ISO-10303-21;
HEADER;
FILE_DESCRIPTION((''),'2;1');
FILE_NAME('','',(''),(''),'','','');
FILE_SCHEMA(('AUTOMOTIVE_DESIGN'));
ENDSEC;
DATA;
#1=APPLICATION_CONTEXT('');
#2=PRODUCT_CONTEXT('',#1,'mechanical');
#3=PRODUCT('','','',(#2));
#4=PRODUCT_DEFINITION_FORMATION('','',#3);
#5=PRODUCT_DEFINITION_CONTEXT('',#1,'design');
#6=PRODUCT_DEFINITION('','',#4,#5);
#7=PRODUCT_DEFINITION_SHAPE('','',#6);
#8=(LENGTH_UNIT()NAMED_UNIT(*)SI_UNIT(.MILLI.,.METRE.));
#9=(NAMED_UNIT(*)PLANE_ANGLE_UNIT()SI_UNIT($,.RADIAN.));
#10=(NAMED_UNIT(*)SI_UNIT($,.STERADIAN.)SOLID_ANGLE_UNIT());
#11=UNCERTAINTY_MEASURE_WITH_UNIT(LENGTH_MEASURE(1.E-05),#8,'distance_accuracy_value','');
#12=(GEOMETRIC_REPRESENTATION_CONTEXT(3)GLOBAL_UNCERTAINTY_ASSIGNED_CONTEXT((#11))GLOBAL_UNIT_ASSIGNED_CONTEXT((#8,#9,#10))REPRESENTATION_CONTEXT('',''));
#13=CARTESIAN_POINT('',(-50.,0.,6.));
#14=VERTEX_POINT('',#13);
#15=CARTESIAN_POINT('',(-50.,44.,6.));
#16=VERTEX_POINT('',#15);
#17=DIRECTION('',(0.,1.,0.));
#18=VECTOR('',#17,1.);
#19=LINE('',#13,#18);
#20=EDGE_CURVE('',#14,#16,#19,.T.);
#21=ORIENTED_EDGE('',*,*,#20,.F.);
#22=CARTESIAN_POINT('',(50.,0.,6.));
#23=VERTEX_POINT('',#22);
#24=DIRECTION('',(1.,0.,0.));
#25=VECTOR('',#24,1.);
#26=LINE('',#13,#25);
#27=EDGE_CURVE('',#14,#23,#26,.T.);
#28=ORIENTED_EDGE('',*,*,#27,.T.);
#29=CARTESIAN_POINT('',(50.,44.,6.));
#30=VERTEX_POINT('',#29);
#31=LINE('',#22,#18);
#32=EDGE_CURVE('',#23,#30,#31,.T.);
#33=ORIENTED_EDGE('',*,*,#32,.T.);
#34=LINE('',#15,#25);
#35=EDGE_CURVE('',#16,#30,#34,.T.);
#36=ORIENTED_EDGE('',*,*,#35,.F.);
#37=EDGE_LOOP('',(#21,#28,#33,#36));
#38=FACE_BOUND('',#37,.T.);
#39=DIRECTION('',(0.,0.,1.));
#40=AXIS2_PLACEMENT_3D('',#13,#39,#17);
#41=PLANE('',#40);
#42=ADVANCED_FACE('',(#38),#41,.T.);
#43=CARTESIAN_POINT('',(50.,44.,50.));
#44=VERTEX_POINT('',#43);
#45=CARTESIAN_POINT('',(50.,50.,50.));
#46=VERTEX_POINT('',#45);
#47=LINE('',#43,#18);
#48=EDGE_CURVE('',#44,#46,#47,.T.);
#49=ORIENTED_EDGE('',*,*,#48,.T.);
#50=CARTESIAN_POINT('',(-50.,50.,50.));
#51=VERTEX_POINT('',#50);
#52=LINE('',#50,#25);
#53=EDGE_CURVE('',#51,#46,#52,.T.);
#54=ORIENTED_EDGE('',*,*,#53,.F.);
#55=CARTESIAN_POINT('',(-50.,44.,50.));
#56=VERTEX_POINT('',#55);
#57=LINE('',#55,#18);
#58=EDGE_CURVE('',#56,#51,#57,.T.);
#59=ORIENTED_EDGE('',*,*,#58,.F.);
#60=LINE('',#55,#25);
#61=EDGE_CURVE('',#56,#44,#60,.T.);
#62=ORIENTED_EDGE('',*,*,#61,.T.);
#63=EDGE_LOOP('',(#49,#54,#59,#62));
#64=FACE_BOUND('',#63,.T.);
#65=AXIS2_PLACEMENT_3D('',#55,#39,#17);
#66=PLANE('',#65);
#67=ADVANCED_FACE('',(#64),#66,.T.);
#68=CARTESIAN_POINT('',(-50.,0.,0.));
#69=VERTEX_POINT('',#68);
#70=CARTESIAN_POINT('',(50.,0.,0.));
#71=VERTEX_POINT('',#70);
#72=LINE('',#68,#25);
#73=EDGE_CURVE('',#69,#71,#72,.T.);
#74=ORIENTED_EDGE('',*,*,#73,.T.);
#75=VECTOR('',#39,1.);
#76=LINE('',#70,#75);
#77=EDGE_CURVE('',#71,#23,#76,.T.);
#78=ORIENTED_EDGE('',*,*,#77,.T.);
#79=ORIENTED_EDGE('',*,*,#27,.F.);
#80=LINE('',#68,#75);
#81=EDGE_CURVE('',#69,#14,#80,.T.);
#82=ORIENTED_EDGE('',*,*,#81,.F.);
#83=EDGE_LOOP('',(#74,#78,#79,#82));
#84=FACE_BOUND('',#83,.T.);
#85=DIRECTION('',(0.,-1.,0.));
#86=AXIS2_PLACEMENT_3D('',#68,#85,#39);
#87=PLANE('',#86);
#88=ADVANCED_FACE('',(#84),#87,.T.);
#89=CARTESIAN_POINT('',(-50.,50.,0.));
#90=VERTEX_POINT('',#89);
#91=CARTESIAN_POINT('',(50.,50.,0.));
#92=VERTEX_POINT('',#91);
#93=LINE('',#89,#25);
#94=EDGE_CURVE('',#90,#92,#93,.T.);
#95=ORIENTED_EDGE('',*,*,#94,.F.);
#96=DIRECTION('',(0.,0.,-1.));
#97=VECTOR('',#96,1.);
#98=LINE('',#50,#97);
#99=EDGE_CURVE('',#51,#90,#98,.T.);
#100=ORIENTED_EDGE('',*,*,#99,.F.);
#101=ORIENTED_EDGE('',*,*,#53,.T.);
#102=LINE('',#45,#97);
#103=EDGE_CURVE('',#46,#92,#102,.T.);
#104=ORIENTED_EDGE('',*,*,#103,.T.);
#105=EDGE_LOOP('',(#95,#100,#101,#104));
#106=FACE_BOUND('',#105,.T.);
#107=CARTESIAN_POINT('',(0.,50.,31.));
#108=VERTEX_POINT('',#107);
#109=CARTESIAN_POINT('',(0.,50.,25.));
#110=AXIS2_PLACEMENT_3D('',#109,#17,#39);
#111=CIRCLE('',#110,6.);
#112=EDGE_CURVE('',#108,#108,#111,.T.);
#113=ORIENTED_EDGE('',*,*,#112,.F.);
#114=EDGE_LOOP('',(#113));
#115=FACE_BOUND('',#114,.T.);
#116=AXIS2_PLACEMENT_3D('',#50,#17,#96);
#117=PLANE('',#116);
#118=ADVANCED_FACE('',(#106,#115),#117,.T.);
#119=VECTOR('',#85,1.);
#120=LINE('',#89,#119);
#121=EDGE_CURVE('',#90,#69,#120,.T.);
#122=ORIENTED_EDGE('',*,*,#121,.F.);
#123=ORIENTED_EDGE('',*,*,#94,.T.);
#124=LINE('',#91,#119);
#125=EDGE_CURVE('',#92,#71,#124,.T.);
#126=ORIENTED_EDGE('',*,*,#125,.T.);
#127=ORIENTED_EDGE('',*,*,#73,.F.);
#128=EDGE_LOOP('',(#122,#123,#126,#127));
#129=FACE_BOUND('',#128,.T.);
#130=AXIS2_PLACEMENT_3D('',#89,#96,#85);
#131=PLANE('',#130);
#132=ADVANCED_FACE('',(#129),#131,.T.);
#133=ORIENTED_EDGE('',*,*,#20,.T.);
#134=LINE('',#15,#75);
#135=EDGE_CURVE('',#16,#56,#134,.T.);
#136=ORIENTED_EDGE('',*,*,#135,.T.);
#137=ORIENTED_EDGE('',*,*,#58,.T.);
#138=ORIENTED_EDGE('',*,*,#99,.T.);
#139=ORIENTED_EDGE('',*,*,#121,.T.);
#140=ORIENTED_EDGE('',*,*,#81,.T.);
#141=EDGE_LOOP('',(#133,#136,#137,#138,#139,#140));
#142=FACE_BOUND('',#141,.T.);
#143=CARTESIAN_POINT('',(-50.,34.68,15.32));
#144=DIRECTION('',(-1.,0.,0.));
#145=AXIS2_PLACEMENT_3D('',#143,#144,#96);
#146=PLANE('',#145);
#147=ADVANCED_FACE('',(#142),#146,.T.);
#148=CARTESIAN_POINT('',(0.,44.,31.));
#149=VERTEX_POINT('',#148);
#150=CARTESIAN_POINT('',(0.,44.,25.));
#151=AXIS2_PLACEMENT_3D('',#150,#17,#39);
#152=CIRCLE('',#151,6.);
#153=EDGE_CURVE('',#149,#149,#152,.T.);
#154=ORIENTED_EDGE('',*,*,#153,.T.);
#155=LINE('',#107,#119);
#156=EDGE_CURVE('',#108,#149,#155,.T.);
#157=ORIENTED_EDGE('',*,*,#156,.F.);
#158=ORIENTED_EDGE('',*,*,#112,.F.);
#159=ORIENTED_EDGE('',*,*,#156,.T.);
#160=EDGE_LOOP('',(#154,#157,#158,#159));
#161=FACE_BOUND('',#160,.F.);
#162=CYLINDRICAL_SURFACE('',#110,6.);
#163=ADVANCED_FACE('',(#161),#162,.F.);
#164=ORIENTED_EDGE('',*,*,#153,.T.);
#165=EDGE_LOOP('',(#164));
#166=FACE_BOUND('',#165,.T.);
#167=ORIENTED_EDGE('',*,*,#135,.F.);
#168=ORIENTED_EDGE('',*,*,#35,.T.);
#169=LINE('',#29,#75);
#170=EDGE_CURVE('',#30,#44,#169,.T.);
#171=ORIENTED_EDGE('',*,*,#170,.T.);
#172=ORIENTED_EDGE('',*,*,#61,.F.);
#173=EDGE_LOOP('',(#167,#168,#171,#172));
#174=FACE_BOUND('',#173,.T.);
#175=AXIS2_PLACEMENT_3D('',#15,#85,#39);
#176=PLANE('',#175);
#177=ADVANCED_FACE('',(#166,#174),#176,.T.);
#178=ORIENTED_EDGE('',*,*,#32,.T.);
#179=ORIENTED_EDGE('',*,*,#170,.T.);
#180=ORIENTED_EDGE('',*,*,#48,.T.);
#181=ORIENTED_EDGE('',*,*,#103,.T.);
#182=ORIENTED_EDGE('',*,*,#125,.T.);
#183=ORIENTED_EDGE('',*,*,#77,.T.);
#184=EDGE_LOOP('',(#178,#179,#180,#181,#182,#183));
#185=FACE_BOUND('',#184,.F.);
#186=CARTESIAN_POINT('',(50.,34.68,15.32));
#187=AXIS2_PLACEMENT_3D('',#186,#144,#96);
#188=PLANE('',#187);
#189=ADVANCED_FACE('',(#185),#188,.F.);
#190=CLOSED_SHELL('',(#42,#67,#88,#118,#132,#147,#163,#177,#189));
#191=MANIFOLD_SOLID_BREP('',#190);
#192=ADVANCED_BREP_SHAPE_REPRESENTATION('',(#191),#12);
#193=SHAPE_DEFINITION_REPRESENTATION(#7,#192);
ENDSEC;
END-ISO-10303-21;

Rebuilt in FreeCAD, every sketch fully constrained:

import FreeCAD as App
import Part
import Sketcher
from FreeCAD import Vector
Q = App.Units.Quantity

doc = App.newDocument("Part")
body = doc.addObject("PartDesign::Body", "Body")

sketch1 = body.newObject("Sketcher::SketchObject", "Sketch")
sketch1.AttachmentSupport = (doc.getObject("XY_Plane"), [""])
sketch1.MapMode = "FlatFace"
sketch1.addGeometry([
    Part.LineSegment(Vector(0, 50, 0), Vector(0, 0, 0)),
    Part.LineSegment(Vector(0, 0, 0), Vector(50, 0, 0)),
    Part.LineSegment(Vector(50, 0, 0), Vector(50, 6, 0)),
    Part.LineSegment(Vector(50, 6, 0), Vector(6, 6, 0)),
    Part.LineSegment(Vector(6, 6, 0), Vector(6, 50, 0)),
    Part.LineSegment(Vector(6, 50, 0), Vector(0, 50, 0)),
], False)
sketch1.addConstraint([
    Sketcher.Constraint("Coincident", 0, 2, 1, 1),
    Sketcher.Constraint("Coincident", 1, 2, 2, 1),
    Sketcher.Constraint("Coincident", 2, 2, 3, 1),
    Sketcher.Constraint("Coincident", 3, 2, 4, 1),
    Sketcher.Constraint("Coincident", 4, 2, 5, 1),
    Sketcher.Constraint("Coincident", 5, 2, 0, 1),
    Sketcher.Constraint("Vertical", 0),
    Sketcher.Constraint("Horizontal", 1),
    Sketcher.Constraint("Vertical", 2),
    Sketcher.Constraint("Horizontal", 3),
    Sketcher.Constraint("Vertical", 4),
    Sketcher.Constraint("Horizontal", 5),
    Sketcher.Constraint("Coincident", 0, 2, -1, 1),
    Sketcher.Constraint("Equal", 1, 0),
    Sketcher.Constraint("Equal", 5, 2),
    Sketcher.Constraint("DistanceX", 1, 1, 1, 2, Q("50 mm")),
    Sketcher.Constraint("DistanceX", 3, 2, 3, 1, Q("44 mm")),
])
pad1 = body.newObject("PartDesign::Pad", "Pad")
pad1.Profile = sketch1
pad1.Length = 100

sketch2 = body.newObject("Sketcher::SketchObject", "Sketch001")
sketch2.AttachmentSupport = (doc.getObject("XZ_Plane"), [""])
sketch2.MapMode = "FlatFace"
sketch2.addGeometry(Part.Circle(Vector(25, 50, 0), Vector(0, 0, 1), 6), False)
sketch2.addConstraint([
    Sketcher.Constraint("Diameter", 0, Q("12 mm")),
    Sketcher.Constraint("DistanceX", -1, 1, 0, 3, Q("25 mm")),
    Sketcher.Constraint("DistanceY", -1, 1, 0, 3, Q("50 mm")),
])
pocket1 = body.newObject("PartDesign::Pocket", "Pocket")
pocket1.Profile = sketch2
pocket1.Type = "ThroughAll"
body2 = doc.addObject("PartDesign::Body", "Body001")
doc.recompute()

body.Placement = App.Placement(Vector(0, 0, 0), App.Rotation(Vector(0, 1, 0), 270))
boolean = body2.newObject("PartDesign::Boolean", "Boolean")
boolean.Type = "Fuse"
boolean.addObjects([body])
body3 = doc.addObject("PartDesign::Body", "Body002")
doc.recompute()

body2.Placement = App.Placement(Vector(-50, 50, 0), App.Rotation(Vector(0, 0, 1), 180))
boolean2 = body3.newObject("PartDesign::Boolean", "Boolean001")
boolean2.Type = "Fuse"
boolean2.addObjects([body2])

doc.recompute()
